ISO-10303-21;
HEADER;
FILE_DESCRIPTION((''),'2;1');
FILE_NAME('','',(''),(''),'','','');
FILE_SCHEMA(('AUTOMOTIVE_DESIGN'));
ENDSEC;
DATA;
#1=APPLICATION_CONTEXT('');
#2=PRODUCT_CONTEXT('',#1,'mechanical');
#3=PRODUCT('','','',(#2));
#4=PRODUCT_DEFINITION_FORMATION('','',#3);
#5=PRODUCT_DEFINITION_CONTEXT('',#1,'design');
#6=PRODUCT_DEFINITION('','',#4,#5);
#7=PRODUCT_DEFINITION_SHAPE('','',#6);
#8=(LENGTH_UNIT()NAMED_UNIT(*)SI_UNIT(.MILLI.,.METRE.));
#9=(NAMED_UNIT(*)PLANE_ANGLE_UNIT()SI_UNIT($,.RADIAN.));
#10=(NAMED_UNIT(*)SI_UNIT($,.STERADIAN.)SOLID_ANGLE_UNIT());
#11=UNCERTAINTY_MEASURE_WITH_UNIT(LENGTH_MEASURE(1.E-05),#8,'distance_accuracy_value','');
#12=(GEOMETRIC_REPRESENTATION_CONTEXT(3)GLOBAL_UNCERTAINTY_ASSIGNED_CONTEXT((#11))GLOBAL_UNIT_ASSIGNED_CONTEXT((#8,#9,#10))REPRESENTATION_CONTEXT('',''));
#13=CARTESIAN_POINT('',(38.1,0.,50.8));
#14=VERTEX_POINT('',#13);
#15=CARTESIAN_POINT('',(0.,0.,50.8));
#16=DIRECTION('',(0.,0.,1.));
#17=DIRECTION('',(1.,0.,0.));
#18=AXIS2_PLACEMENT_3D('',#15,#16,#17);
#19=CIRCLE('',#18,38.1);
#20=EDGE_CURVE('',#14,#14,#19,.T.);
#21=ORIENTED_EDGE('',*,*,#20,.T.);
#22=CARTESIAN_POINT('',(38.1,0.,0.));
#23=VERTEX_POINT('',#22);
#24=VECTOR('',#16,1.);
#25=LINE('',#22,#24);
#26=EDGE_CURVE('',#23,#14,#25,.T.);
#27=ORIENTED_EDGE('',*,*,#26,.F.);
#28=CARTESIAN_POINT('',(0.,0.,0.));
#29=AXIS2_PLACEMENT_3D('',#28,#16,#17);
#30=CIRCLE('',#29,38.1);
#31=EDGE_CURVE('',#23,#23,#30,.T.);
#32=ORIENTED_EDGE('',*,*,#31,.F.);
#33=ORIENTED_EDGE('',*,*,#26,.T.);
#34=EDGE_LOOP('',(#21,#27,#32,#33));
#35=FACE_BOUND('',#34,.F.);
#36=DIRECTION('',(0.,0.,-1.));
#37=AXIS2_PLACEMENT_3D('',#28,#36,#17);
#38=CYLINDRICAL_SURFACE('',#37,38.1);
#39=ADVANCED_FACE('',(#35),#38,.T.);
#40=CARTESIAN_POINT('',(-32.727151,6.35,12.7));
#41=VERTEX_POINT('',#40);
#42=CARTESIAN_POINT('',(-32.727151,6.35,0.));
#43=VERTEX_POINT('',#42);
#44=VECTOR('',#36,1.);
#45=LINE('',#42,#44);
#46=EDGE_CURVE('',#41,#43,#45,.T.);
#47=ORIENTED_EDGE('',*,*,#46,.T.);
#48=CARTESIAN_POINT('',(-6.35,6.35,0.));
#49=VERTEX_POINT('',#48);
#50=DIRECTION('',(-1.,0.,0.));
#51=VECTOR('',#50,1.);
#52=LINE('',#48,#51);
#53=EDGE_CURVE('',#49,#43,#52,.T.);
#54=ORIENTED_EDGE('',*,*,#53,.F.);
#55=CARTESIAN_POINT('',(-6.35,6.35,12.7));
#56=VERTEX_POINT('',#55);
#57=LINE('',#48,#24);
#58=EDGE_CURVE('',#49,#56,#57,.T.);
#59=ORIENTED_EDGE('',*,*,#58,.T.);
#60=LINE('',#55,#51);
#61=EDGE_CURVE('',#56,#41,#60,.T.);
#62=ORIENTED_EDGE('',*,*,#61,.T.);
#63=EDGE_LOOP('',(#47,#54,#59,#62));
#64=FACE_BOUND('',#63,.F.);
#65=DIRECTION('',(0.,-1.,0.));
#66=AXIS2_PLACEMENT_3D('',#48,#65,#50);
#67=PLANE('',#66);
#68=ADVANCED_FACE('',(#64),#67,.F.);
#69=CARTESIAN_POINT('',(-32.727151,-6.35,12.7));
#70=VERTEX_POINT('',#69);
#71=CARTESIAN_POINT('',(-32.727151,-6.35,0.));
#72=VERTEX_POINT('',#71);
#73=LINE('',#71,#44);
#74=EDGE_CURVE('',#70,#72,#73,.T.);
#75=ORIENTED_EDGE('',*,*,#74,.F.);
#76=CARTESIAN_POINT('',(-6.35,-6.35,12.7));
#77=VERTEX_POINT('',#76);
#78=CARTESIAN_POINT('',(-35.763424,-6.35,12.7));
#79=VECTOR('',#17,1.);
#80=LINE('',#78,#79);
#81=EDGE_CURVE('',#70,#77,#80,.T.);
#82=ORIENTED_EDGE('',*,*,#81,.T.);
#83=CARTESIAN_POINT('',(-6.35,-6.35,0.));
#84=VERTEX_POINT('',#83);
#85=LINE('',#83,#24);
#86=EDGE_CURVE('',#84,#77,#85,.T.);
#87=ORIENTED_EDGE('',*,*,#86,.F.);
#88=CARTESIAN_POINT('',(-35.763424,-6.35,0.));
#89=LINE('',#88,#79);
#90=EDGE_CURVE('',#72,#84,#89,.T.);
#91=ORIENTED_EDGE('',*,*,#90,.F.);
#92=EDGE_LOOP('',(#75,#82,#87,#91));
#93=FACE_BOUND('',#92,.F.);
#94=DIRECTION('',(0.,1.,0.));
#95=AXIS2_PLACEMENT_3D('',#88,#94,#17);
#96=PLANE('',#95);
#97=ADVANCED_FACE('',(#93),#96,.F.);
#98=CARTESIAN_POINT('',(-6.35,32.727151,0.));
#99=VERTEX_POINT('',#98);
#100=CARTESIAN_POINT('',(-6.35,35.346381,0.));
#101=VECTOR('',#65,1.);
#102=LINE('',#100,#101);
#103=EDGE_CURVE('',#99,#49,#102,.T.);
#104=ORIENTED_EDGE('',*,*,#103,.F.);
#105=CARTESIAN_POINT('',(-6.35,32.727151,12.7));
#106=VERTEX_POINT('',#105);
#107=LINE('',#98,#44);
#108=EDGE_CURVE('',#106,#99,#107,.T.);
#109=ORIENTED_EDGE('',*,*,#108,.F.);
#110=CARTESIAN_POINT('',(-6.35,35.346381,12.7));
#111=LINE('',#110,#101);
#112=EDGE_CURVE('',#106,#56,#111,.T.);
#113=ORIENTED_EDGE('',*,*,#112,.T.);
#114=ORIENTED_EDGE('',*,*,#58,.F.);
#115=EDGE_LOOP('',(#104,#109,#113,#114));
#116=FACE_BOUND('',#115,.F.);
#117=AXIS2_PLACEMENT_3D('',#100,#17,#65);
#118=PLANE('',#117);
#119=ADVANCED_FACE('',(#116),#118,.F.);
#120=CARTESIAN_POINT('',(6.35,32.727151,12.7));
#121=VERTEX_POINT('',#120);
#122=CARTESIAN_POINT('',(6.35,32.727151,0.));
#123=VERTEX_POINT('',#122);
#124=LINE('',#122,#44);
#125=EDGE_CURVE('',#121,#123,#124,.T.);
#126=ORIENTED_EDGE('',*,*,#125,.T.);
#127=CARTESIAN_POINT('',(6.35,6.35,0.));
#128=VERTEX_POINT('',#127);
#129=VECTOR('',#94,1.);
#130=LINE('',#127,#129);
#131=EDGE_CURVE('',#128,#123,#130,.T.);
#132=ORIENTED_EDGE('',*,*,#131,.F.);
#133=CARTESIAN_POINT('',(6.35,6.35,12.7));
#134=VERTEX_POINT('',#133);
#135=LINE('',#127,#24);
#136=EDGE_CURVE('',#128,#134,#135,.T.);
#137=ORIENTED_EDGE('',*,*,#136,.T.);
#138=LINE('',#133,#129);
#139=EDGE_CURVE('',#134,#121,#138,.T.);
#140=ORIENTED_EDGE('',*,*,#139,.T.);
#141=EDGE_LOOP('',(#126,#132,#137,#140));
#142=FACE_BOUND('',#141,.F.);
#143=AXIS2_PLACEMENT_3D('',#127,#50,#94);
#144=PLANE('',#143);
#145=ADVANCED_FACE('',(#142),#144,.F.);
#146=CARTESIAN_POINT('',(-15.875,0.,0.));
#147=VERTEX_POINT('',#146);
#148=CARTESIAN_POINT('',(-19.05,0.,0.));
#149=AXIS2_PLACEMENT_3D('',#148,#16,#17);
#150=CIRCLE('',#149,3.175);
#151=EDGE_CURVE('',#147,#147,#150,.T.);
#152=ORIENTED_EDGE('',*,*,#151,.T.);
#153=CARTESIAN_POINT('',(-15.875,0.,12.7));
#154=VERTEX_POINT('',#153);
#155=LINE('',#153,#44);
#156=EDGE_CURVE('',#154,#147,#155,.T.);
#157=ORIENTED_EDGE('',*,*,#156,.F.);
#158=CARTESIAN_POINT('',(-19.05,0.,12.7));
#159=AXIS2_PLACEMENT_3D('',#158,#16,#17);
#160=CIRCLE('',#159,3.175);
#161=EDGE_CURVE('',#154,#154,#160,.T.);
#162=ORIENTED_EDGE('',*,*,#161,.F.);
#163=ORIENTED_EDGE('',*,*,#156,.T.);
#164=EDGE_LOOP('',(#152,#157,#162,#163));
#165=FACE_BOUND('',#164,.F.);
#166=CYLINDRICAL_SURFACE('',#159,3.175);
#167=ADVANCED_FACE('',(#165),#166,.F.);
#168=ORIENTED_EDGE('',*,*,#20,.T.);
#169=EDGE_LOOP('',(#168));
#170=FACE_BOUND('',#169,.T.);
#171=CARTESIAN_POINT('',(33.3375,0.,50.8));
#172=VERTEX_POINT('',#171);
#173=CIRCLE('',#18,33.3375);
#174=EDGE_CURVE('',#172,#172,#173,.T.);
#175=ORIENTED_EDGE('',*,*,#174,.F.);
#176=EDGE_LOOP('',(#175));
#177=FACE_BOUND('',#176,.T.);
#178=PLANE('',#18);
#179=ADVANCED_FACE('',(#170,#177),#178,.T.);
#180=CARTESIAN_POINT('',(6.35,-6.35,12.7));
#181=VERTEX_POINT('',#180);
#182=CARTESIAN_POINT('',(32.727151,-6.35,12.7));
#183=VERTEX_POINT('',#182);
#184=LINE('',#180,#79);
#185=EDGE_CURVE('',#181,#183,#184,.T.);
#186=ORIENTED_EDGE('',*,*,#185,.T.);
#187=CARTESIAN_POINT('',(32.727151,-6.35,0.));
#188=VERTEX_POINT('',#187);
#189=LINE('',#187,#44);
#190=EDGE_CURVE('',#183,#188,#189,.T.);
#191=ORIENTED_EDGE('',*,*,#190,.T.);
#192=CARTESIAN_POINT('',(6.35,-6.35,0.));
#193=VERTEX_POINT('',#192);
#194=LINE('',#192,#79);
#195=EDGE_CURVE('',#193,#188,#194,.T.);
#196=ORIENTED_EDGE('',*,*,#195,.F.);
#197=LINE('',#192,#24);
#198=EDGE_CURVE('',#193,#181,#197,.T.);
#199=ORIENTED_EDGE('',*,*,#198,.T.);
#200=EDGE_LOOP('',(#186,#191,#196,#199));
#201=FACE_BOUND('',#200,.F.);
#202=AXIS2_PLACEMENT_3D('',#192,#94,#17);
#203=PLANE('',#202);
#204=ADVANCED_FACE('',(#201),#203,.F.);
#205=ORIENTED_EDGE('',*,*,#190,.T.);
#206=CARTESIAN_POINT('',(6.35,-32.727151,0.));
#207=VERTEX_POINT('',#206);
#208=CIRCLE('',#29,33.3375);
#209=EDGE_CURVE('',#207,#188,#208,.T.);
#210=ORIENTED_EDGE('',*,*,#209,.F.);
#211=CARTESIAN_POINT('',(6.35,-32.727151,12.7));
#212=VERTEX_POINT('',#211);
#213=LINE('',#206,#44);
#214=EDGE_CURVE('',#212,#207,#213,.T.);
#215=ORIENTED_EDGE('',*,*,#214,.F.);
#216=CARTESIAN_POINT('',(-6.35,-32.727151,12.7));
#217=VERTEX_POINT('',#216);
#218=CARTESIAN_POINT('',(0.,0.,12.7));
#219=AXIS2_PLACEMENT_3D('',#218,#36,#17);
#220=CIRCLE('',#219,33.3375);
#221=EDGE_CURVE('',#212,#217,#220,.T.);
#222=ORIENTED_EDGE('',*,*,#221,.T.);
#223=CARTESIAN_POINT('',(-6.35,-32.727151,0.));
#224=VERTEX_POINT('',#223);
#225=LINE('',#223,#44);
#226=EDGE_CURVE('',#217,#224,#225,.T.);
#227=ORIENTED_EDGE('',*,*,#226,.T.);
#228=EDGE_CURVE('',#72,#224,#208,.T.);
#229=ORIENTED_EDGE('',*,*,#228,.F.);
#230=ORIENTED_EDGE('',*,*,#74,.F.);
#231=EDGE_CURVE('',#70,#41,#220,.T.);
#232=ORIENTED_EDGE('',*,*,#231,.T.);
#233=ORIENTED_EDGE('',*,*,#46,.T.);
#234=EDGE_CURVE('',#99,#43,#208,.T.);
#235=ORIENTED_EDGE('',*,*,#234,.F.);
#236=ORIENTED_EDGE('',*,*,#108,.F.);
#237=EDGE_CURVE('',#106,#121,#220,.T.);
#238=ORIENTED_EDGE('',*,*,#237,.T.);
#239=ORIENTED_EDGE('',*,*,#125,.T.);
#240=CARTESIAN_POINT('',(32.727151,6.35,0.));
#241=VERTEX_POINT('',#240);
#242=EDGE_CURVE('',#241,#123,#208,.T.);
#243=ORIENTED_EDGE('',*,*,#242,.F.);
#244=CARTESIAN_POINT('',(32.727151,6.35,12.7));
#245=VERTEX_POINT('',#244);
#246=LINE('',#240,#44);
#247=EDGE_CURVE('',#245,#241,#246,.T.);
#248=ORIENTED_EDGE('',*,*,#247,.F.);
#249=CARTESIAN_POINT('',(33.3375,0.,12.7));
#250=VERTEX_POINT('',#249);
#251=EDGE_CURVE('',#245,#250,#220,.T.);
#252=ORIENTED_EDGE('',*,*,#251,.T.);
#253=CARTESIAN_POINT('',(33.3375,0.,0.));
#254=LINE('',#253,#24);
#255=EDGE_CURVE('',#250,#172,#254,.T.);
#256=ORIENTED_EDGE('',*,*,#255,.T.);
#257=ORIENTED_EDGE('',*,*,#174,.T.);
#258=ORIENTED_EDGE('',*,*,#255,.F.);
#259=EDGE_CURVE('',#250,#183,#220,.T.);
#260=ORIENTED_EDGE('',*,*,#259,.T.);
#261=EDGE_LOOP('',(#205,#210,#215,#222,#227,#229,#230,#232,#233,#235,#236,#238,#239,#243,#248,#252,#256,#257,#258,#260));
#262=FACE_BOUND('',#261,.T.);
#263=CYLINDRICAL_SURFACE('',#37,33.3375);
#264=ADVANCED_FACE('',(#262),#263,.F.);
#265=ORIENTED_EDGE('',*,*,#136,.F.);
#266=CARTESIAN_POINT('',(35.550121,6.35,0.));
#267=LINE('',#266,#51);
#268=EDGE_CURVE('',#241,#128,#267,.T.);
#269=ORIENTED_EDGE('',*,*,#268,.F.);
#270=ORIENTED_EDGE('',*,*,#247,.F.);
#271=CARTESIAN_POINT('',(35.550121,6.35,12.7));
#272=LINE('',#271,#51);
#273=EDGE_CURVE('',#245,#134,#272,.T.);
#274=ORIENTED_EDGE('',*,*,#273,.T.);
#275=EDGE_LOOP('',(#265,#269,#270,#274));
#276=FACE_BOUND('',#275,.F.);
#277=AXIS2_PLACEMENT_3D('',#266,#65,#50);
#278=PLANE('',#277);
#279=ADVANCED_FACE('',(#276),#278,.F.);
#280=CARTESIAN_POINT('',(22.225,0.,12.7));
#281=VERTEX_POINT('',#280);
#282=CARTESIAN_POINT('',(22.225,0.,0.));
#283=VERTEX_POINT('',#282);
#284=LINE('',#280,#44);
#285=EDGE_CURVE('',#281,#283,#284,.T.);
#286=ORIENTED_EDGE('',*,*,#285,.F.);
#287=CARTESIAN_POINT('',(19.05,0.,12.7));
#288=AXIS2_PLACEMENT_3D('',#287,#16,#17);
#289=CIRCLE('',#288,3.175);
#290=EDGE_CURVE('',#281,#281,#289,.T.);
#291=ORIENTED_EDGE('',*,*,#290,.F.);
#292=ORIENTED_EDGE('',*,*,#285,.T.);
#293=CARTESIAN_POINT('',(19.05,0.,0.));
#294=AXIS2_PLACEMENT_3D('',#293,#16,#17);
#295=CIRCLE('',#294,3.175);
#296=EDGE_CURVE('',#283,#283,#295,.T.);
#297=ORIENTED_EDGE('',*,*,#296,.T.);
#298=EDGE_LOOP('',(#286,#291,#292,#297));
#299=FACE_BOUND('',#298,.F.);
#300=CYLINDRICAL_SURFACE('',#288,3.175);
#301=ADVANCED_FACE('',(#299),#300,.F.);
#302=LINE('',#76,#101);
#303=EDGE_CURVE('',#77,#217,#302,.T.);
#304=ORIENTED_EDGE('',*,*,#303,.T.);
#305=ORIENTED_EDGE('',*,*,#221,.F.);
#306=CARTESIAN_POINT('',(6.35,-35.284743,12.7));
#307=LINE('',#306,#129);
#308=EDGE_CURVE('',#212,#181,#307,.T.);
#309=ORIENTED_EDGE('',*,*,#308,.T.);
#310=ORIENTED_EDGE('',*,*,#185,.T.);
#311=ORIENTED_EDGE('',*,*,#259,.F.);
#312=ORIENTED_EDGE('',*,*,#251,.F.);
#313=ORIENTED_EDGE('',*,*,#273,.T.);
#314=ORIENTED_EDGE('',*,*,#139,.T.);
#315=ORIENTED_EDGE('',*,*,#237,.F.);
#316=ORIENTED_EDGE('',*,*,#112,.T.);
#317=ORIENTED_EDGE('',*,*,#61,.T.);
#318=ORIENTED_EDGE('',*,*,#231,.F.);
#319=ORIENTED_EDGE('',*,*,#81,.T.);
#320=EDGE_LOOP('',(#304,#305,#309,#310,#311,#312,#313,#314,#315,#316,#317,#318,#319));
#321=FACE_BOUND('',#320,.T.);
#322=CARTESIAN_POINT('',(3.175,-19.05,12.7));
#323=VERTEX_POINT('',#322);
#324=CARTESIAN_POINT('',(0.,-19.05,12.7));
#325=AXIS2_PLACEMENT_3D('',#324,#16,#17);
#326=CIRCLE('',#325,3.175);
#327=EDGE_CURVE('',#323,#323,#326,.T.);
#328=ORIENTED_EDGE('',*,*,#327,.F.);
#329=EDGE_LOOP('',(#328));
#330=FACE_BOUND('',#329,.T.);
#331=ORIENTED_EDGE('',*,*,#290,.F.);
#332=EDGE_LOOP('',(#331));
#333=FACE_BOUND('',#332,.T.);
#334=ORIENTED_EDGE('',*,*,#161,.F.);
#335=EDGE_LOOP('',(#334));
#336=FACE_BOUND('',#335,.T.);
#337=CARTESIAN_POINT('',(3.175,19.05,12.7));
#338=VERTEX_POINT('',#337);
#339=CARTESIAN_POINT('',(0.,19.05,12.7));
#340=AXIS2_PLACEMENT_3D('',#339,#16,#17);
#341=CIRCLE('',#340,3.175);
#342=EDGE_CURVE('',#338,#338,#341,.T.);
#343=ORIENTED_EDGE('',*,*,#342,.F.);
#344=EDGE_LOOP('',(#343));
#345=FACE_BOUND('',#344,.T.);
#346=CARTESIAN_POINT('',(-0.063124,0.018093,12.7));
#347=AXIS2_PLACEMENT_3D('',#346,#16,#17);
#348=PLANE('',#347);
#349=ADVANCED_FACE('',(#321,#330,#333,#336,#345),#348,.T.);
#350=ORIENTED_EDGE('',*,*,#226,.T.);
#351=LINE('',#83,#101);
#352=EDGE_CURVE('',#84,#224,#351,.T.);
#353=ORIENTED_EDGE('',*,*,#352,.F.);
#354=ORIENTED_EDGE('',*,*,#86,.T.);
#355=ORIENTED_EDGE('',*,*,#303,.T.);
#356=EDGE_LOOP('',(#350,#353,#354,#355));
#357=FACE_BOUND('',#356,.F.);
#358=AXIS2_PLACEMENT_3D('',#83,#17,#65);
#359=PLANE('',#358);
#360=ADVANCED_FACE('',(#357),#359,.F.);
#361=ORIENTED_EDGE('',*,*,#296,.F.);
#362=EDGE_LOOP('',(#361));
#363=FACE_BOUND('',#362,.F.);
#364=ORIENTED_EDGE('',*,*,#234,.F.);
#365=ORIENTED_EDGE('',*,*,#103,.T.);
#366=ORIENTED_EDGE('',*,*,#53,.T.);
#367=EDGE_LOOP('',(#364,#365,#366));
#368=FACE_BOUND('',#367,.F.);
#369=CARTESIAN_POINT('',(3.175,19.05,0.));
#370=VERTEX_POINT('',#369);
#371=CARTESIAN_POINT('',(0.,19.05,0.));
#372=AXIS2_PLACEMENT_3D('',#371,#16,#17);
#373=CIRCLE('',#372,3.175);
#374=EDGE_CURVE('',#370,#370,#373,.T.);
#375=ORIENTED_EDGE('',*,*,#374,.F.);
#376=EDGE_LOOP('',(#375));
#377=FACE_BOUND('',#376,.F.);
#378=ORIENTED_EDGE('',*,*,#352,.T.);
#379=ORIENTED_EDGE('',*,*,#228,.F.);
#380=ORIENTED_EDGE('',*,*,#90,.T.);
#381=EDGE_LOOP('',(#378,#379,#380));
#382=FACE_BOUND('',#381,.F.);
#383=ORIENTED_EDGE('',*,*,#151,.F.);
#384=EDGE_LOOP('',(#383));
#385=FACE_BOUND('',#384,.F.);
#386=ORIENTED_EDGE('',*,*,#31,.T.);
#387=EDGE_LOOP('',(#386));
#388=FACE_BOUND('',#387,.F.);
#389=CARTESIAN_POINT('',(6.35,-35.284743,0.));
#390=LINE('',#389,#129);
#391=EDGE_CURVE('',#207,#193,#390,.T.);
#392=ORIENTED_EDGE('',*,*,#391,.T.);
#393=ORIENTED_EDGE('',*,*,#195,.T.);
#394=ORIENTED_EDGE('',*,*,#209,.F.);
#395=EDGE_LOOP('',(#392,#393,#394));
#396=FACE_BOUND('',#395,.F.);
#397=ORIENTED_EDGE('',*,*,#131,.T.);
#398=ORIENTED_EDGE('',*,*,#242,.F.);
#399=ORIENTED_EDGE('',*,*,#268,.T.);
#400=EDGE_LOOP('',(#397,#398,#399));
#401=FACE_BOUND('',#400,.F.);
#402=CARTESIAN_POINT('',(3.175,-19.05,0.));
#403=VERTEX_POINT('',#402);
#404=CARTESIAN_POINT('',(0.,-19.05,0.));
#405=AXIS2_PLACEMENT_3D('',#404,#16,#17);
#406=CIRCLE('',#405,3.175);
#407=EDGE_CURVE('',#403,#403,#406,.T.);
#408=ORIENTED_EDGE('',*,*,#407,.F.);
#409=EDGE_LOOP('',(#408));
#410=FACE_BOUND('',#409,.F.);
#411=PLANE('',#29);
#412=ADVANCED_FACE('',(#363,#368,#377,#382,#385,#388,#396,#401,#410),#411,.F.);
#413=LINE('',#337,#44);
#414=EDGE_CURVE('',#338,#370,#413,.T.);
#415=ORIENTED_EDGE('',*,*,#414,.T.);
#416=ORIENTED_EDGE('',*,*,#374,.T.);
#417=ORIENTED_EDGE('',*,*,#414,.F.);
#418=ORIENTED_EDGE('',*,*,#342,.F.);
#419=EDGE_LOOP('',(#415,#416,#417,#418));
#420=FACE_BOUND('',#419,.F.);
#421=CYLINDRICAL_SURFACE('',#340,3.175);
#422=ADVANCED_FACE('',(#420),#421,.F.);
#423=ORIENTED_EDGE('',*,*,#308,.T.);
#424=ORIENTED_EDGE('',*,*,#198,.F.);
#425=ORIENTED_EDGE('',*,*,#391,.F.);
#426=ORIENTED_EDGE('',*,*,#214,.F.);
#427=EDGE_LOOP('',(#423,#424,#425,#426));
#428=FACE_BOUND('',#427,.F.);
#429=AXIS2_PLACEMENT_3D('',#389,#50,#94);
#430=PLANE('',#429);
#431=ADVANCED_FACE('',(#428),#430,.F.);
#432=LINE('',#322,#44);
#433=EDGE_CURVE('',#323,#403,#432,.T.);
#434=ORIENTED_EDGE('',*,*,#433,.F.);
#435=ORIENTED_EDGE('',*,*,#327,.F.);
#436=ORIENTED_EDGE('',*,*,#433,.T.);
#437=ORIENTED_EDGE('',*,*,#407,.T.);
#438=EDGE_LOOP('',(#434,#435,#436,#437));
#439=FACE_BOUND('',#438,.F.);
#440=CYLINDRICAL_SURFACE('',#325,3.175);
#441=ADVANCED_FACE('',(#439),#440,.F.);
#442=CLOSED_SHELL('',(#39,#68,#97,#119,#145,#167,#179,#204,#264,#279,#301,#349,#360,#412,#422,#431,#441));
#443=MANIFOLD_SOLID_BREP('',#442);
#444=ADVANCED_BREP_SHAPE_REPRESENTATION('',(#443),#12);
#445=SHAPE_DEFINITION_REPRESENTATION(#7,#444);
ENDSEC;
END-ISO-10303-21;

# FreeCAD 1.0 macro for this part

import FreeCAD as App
import Part
import Sketcher

V = App.Vector
Q = App.Units.Quantity


def add_polygon(sketch, points):
    """Adds a closed chain of lines whose ends are joined by coincident constraints."""
    first, n = sketch.GeometryCount, len(points)
    for a, b in zip(points, points[1:] + points[:1]):
        sketch.addGeometry(Part.LineSegment(App.Vector(*a, 0), App.Vector(*b, 0)), False)
    for i in range(n):
        sketch.addConstraint(Sketcher.Constraint("Coincident", first + i, 2, first + (i + 1) % n, 1))

doc = App.newDocument("Part")
params = doc.addObject("Spreadsheet::Sheet", "Params")
for row, (alias, value) in enumerate([
    ("sketch1_diameter", "3 in"),
    ("sketch1_diameter2", "2.625 in"),
    ("pad1_length", "2 in"),
    ("sketch2_width", "0.5 in"),
    ("pad2_length", "0.5 in"),
    ("sketch3_diameter", "0.25 in"),
    ("pocket1_length", "1 in"),
], start=1):
    params.set(f"A{row}", alias)
    params.set(f"B{row}", "=" + value)
    params.setAlias(f"B{row}", alias)

body = doc.addObject("PartDesign::Body", "Body")

# Sketch on XY plane
sketch1 = doc.addObject("Sketcher::SketchObject", "Sketch")
body.addObject(sketch1)
sketch1.AttachmentSupport = (doc.XY_Plane, [""])
sketch1.MapMode = "FlatFace"
sketch1.addGeometry(Part.Circle(V(0, 0, 0), V(0, 0, 1), 38.1), False)
sketch1.addGeometry(Part.Circle(V(0, 0, 0), V(0, 0, 1), 33.3375), False)
sketch1.addConstraint(Sketcher.Constraint("Coincident", 0, 3, -1, 1))
sketch1.addConstraint(Sketcher.Constraint("Coincident", 1, 3, -1, 1))
sketch1.addConstraint(Sketcher.Constraint("Diameter", 0, Q("3 in")))
sketch1.addConstraint(Sketcher.Constraint("Diameter", 1, Q("2.625 in")))
sketch1.setExpression("Constraints[2]", "Params.sketch1_diameter")
sketch1.setExpression("Constraints[3]", "Params.sketch1_diameter2")
pad1 = doc.addObject("PartDesign::Pad", "Pad")
body.addObject(pad1)
pad1.Profile = sketch1
pad1.setExpression("Length", "Params.pad1_length")

# Sketch on XY plane
sketch2 = doc.addObject("Sketcher::SketchObject", "Sketch001")
body.addObject(sketch2)
sketch2.AttachmentSupport = (doc.XY_Plane, [""])
sketch2.MapMode = "FlatFace"
add_polygon(sketch2, [(-6.35, 35.346381), (-6.35, 6.35), (-35.763424, 6.35), (-35.763424, -6.35), (-6.35, -6.35), (-6.35, -35.284743), (6.35, -35.284743), (6.35, -6.35), (35.550121, -6.35), (35.550121, 6.35), (6.35, 6.35), (6.35, 35.346381)])  # lines 0-11
sketch2.addConstraint(Sketcher.Constraint("Vertical", 0))
sketch2.addConstraint(Sketcher.Constraint("Horizontal", 1))
sketch2.addConstraint(Sketcher.Constraint("Vertical", 2))
sketch2.addConstraint(Sketcher.Constraint("Horizontal", 3))
sketch2.addConstraint(Sketcher.Constraint("Vertical", 4))
sketch2.addConstraint(Sketcher.Constraint("Horizontal", 5))
sketch2.addConstraint(Sketcher.Constraint("Vertical", 6))
sketch2.addConstraint(Sketcher.Constraint("Horizontal", 7))
sketch2.addConstraint(Sketcher.Constraint("Vertical", 8))
sketch2.addConstraint(Sketcher.Constraint("Horizontal", 9))
sketch2.addConstraint(Sketcher.Constraint("Vertical", 10))
sketch2.addConstraint(Sketcher.Constraint("Horizontal", 11))
sketch2.addConstraint(Sketcher.Constraint("Symmetric", 0, 2, 6, 2, -1, 1))
sketch2.addConstraint(Sketcher.Constraint("Symmetric", 3, 2, 9, 2, -1, 1))
sketch2.addConstraint(Sketcher.Constraint("Symmetric", 3, 2, 6, 2, -2))
sketch2.addConstraint(Sketcher.Constraint("Equal", 11, 2))
sketch2.addConstraint(Sketcher.Constraint("DistanceX", 5, 1, 5, 2, Q("0.5 in")))
sketch2.addConstraint(Sketcher.Constraint("DistanceX", 7, 1, 7, 2, Q("29.200121 mm")))
sketch2.addConstraint(Sketcher.Constraint("DistanceY", 0, 2, 0, 1, Q("28.996381 mm")))
sketch2.addConstraint(Sketcher.Constraint("DistanceX", 1, 2, 1, 1, Q("29.413424 mm")))
sketch2.addConstraint(Sketcher.Constraint("DistanceY", 4, 2, 4, 1, Q("28.934743 mm")))
sketch2.setExpression("Constraints[28]", "Params.sketch2_width")
pad2 = doc.addObject("PartDesign::Pad", "Pad001")
body.addObject(pad2)
pad2.Profile = sketch2
pad2.setExpression("Length", "Params.pad2_length")

# Sketch on XY plane
sketch3 = doc.addObject("Sketcher::SketchObject", "Sketch002")
body.addObject(sketch3)
sketch3.AttachmentSupport = (doc.XY_Plane, [""])
sketch3.MapMode = "FlatFace"
sketch3.AttachmentOffset = App.Placement(V(0, 0, 0.5 * 25.4), App.Rotation())
sketch3.addGeometry(Part.Circle(V(-19.05, 0, 0), V(0, 0, 1), 3.175), False)
sketch3.addGeometry(Part.Circle(V(19.05, 0, 0), V(0, 0, 1), 3.175), False)
sketch3.addGeometry(Part.Circle(V(0, 19.05, 0), V(0, 0, 1), 3.175), False)
sketch3.addGeometry(Part.Circle(V(0, -19.05, 0), V(0, 0, 1), 3.175), False)
sketch3.addConstraint(Sketcher.Constraint("Equal", 0, 1))
sketch3.addConstraint(Sketcher.Constraint("Equal", 1, 2))
sketch3.addConstraint(Sketcher.Constraint("Equal", 2, 3))
sketch3.addConstraint(Sketcher.Constraint("Symmetric", 0, 3, 1, 3, -1, 1))
sketch3.addConstraint(Sketcher.Constraint("Symmetric", 2, 3, 3, 3, -1, 1))
sketch3.addConstraint(Sketcher.Constraint("PointOnObject", 0, 3, -1))
sketch3.addConstraint(Sketcher.Constraint("PointOnObject", 2, 3, -2))
sketch3.addConstraint(Sketcher.Constraint("Diameter", 0, Q("0.25 in")))
sketch3.addConstraint(Sketcher.Constraint("DistanceX", 0, 3, 1, 3, Q("1.5 in")))
sketch3.addConstraint(Sketcher.Constraint("DistanceY", 3, 3, 2, 3, Q("1.5 in")))
sketch3.setExpression("Constraints[7]", "Params.sketch3_diameter")
pocket1 = doc.addObject("PartDesign::Pocket", "Pocket")
body.addObject(pocket1)
pocket1.Profile = sketch3
pocket1.setExpression("Length", "Params.pocket1_length")

doc.recompute()
